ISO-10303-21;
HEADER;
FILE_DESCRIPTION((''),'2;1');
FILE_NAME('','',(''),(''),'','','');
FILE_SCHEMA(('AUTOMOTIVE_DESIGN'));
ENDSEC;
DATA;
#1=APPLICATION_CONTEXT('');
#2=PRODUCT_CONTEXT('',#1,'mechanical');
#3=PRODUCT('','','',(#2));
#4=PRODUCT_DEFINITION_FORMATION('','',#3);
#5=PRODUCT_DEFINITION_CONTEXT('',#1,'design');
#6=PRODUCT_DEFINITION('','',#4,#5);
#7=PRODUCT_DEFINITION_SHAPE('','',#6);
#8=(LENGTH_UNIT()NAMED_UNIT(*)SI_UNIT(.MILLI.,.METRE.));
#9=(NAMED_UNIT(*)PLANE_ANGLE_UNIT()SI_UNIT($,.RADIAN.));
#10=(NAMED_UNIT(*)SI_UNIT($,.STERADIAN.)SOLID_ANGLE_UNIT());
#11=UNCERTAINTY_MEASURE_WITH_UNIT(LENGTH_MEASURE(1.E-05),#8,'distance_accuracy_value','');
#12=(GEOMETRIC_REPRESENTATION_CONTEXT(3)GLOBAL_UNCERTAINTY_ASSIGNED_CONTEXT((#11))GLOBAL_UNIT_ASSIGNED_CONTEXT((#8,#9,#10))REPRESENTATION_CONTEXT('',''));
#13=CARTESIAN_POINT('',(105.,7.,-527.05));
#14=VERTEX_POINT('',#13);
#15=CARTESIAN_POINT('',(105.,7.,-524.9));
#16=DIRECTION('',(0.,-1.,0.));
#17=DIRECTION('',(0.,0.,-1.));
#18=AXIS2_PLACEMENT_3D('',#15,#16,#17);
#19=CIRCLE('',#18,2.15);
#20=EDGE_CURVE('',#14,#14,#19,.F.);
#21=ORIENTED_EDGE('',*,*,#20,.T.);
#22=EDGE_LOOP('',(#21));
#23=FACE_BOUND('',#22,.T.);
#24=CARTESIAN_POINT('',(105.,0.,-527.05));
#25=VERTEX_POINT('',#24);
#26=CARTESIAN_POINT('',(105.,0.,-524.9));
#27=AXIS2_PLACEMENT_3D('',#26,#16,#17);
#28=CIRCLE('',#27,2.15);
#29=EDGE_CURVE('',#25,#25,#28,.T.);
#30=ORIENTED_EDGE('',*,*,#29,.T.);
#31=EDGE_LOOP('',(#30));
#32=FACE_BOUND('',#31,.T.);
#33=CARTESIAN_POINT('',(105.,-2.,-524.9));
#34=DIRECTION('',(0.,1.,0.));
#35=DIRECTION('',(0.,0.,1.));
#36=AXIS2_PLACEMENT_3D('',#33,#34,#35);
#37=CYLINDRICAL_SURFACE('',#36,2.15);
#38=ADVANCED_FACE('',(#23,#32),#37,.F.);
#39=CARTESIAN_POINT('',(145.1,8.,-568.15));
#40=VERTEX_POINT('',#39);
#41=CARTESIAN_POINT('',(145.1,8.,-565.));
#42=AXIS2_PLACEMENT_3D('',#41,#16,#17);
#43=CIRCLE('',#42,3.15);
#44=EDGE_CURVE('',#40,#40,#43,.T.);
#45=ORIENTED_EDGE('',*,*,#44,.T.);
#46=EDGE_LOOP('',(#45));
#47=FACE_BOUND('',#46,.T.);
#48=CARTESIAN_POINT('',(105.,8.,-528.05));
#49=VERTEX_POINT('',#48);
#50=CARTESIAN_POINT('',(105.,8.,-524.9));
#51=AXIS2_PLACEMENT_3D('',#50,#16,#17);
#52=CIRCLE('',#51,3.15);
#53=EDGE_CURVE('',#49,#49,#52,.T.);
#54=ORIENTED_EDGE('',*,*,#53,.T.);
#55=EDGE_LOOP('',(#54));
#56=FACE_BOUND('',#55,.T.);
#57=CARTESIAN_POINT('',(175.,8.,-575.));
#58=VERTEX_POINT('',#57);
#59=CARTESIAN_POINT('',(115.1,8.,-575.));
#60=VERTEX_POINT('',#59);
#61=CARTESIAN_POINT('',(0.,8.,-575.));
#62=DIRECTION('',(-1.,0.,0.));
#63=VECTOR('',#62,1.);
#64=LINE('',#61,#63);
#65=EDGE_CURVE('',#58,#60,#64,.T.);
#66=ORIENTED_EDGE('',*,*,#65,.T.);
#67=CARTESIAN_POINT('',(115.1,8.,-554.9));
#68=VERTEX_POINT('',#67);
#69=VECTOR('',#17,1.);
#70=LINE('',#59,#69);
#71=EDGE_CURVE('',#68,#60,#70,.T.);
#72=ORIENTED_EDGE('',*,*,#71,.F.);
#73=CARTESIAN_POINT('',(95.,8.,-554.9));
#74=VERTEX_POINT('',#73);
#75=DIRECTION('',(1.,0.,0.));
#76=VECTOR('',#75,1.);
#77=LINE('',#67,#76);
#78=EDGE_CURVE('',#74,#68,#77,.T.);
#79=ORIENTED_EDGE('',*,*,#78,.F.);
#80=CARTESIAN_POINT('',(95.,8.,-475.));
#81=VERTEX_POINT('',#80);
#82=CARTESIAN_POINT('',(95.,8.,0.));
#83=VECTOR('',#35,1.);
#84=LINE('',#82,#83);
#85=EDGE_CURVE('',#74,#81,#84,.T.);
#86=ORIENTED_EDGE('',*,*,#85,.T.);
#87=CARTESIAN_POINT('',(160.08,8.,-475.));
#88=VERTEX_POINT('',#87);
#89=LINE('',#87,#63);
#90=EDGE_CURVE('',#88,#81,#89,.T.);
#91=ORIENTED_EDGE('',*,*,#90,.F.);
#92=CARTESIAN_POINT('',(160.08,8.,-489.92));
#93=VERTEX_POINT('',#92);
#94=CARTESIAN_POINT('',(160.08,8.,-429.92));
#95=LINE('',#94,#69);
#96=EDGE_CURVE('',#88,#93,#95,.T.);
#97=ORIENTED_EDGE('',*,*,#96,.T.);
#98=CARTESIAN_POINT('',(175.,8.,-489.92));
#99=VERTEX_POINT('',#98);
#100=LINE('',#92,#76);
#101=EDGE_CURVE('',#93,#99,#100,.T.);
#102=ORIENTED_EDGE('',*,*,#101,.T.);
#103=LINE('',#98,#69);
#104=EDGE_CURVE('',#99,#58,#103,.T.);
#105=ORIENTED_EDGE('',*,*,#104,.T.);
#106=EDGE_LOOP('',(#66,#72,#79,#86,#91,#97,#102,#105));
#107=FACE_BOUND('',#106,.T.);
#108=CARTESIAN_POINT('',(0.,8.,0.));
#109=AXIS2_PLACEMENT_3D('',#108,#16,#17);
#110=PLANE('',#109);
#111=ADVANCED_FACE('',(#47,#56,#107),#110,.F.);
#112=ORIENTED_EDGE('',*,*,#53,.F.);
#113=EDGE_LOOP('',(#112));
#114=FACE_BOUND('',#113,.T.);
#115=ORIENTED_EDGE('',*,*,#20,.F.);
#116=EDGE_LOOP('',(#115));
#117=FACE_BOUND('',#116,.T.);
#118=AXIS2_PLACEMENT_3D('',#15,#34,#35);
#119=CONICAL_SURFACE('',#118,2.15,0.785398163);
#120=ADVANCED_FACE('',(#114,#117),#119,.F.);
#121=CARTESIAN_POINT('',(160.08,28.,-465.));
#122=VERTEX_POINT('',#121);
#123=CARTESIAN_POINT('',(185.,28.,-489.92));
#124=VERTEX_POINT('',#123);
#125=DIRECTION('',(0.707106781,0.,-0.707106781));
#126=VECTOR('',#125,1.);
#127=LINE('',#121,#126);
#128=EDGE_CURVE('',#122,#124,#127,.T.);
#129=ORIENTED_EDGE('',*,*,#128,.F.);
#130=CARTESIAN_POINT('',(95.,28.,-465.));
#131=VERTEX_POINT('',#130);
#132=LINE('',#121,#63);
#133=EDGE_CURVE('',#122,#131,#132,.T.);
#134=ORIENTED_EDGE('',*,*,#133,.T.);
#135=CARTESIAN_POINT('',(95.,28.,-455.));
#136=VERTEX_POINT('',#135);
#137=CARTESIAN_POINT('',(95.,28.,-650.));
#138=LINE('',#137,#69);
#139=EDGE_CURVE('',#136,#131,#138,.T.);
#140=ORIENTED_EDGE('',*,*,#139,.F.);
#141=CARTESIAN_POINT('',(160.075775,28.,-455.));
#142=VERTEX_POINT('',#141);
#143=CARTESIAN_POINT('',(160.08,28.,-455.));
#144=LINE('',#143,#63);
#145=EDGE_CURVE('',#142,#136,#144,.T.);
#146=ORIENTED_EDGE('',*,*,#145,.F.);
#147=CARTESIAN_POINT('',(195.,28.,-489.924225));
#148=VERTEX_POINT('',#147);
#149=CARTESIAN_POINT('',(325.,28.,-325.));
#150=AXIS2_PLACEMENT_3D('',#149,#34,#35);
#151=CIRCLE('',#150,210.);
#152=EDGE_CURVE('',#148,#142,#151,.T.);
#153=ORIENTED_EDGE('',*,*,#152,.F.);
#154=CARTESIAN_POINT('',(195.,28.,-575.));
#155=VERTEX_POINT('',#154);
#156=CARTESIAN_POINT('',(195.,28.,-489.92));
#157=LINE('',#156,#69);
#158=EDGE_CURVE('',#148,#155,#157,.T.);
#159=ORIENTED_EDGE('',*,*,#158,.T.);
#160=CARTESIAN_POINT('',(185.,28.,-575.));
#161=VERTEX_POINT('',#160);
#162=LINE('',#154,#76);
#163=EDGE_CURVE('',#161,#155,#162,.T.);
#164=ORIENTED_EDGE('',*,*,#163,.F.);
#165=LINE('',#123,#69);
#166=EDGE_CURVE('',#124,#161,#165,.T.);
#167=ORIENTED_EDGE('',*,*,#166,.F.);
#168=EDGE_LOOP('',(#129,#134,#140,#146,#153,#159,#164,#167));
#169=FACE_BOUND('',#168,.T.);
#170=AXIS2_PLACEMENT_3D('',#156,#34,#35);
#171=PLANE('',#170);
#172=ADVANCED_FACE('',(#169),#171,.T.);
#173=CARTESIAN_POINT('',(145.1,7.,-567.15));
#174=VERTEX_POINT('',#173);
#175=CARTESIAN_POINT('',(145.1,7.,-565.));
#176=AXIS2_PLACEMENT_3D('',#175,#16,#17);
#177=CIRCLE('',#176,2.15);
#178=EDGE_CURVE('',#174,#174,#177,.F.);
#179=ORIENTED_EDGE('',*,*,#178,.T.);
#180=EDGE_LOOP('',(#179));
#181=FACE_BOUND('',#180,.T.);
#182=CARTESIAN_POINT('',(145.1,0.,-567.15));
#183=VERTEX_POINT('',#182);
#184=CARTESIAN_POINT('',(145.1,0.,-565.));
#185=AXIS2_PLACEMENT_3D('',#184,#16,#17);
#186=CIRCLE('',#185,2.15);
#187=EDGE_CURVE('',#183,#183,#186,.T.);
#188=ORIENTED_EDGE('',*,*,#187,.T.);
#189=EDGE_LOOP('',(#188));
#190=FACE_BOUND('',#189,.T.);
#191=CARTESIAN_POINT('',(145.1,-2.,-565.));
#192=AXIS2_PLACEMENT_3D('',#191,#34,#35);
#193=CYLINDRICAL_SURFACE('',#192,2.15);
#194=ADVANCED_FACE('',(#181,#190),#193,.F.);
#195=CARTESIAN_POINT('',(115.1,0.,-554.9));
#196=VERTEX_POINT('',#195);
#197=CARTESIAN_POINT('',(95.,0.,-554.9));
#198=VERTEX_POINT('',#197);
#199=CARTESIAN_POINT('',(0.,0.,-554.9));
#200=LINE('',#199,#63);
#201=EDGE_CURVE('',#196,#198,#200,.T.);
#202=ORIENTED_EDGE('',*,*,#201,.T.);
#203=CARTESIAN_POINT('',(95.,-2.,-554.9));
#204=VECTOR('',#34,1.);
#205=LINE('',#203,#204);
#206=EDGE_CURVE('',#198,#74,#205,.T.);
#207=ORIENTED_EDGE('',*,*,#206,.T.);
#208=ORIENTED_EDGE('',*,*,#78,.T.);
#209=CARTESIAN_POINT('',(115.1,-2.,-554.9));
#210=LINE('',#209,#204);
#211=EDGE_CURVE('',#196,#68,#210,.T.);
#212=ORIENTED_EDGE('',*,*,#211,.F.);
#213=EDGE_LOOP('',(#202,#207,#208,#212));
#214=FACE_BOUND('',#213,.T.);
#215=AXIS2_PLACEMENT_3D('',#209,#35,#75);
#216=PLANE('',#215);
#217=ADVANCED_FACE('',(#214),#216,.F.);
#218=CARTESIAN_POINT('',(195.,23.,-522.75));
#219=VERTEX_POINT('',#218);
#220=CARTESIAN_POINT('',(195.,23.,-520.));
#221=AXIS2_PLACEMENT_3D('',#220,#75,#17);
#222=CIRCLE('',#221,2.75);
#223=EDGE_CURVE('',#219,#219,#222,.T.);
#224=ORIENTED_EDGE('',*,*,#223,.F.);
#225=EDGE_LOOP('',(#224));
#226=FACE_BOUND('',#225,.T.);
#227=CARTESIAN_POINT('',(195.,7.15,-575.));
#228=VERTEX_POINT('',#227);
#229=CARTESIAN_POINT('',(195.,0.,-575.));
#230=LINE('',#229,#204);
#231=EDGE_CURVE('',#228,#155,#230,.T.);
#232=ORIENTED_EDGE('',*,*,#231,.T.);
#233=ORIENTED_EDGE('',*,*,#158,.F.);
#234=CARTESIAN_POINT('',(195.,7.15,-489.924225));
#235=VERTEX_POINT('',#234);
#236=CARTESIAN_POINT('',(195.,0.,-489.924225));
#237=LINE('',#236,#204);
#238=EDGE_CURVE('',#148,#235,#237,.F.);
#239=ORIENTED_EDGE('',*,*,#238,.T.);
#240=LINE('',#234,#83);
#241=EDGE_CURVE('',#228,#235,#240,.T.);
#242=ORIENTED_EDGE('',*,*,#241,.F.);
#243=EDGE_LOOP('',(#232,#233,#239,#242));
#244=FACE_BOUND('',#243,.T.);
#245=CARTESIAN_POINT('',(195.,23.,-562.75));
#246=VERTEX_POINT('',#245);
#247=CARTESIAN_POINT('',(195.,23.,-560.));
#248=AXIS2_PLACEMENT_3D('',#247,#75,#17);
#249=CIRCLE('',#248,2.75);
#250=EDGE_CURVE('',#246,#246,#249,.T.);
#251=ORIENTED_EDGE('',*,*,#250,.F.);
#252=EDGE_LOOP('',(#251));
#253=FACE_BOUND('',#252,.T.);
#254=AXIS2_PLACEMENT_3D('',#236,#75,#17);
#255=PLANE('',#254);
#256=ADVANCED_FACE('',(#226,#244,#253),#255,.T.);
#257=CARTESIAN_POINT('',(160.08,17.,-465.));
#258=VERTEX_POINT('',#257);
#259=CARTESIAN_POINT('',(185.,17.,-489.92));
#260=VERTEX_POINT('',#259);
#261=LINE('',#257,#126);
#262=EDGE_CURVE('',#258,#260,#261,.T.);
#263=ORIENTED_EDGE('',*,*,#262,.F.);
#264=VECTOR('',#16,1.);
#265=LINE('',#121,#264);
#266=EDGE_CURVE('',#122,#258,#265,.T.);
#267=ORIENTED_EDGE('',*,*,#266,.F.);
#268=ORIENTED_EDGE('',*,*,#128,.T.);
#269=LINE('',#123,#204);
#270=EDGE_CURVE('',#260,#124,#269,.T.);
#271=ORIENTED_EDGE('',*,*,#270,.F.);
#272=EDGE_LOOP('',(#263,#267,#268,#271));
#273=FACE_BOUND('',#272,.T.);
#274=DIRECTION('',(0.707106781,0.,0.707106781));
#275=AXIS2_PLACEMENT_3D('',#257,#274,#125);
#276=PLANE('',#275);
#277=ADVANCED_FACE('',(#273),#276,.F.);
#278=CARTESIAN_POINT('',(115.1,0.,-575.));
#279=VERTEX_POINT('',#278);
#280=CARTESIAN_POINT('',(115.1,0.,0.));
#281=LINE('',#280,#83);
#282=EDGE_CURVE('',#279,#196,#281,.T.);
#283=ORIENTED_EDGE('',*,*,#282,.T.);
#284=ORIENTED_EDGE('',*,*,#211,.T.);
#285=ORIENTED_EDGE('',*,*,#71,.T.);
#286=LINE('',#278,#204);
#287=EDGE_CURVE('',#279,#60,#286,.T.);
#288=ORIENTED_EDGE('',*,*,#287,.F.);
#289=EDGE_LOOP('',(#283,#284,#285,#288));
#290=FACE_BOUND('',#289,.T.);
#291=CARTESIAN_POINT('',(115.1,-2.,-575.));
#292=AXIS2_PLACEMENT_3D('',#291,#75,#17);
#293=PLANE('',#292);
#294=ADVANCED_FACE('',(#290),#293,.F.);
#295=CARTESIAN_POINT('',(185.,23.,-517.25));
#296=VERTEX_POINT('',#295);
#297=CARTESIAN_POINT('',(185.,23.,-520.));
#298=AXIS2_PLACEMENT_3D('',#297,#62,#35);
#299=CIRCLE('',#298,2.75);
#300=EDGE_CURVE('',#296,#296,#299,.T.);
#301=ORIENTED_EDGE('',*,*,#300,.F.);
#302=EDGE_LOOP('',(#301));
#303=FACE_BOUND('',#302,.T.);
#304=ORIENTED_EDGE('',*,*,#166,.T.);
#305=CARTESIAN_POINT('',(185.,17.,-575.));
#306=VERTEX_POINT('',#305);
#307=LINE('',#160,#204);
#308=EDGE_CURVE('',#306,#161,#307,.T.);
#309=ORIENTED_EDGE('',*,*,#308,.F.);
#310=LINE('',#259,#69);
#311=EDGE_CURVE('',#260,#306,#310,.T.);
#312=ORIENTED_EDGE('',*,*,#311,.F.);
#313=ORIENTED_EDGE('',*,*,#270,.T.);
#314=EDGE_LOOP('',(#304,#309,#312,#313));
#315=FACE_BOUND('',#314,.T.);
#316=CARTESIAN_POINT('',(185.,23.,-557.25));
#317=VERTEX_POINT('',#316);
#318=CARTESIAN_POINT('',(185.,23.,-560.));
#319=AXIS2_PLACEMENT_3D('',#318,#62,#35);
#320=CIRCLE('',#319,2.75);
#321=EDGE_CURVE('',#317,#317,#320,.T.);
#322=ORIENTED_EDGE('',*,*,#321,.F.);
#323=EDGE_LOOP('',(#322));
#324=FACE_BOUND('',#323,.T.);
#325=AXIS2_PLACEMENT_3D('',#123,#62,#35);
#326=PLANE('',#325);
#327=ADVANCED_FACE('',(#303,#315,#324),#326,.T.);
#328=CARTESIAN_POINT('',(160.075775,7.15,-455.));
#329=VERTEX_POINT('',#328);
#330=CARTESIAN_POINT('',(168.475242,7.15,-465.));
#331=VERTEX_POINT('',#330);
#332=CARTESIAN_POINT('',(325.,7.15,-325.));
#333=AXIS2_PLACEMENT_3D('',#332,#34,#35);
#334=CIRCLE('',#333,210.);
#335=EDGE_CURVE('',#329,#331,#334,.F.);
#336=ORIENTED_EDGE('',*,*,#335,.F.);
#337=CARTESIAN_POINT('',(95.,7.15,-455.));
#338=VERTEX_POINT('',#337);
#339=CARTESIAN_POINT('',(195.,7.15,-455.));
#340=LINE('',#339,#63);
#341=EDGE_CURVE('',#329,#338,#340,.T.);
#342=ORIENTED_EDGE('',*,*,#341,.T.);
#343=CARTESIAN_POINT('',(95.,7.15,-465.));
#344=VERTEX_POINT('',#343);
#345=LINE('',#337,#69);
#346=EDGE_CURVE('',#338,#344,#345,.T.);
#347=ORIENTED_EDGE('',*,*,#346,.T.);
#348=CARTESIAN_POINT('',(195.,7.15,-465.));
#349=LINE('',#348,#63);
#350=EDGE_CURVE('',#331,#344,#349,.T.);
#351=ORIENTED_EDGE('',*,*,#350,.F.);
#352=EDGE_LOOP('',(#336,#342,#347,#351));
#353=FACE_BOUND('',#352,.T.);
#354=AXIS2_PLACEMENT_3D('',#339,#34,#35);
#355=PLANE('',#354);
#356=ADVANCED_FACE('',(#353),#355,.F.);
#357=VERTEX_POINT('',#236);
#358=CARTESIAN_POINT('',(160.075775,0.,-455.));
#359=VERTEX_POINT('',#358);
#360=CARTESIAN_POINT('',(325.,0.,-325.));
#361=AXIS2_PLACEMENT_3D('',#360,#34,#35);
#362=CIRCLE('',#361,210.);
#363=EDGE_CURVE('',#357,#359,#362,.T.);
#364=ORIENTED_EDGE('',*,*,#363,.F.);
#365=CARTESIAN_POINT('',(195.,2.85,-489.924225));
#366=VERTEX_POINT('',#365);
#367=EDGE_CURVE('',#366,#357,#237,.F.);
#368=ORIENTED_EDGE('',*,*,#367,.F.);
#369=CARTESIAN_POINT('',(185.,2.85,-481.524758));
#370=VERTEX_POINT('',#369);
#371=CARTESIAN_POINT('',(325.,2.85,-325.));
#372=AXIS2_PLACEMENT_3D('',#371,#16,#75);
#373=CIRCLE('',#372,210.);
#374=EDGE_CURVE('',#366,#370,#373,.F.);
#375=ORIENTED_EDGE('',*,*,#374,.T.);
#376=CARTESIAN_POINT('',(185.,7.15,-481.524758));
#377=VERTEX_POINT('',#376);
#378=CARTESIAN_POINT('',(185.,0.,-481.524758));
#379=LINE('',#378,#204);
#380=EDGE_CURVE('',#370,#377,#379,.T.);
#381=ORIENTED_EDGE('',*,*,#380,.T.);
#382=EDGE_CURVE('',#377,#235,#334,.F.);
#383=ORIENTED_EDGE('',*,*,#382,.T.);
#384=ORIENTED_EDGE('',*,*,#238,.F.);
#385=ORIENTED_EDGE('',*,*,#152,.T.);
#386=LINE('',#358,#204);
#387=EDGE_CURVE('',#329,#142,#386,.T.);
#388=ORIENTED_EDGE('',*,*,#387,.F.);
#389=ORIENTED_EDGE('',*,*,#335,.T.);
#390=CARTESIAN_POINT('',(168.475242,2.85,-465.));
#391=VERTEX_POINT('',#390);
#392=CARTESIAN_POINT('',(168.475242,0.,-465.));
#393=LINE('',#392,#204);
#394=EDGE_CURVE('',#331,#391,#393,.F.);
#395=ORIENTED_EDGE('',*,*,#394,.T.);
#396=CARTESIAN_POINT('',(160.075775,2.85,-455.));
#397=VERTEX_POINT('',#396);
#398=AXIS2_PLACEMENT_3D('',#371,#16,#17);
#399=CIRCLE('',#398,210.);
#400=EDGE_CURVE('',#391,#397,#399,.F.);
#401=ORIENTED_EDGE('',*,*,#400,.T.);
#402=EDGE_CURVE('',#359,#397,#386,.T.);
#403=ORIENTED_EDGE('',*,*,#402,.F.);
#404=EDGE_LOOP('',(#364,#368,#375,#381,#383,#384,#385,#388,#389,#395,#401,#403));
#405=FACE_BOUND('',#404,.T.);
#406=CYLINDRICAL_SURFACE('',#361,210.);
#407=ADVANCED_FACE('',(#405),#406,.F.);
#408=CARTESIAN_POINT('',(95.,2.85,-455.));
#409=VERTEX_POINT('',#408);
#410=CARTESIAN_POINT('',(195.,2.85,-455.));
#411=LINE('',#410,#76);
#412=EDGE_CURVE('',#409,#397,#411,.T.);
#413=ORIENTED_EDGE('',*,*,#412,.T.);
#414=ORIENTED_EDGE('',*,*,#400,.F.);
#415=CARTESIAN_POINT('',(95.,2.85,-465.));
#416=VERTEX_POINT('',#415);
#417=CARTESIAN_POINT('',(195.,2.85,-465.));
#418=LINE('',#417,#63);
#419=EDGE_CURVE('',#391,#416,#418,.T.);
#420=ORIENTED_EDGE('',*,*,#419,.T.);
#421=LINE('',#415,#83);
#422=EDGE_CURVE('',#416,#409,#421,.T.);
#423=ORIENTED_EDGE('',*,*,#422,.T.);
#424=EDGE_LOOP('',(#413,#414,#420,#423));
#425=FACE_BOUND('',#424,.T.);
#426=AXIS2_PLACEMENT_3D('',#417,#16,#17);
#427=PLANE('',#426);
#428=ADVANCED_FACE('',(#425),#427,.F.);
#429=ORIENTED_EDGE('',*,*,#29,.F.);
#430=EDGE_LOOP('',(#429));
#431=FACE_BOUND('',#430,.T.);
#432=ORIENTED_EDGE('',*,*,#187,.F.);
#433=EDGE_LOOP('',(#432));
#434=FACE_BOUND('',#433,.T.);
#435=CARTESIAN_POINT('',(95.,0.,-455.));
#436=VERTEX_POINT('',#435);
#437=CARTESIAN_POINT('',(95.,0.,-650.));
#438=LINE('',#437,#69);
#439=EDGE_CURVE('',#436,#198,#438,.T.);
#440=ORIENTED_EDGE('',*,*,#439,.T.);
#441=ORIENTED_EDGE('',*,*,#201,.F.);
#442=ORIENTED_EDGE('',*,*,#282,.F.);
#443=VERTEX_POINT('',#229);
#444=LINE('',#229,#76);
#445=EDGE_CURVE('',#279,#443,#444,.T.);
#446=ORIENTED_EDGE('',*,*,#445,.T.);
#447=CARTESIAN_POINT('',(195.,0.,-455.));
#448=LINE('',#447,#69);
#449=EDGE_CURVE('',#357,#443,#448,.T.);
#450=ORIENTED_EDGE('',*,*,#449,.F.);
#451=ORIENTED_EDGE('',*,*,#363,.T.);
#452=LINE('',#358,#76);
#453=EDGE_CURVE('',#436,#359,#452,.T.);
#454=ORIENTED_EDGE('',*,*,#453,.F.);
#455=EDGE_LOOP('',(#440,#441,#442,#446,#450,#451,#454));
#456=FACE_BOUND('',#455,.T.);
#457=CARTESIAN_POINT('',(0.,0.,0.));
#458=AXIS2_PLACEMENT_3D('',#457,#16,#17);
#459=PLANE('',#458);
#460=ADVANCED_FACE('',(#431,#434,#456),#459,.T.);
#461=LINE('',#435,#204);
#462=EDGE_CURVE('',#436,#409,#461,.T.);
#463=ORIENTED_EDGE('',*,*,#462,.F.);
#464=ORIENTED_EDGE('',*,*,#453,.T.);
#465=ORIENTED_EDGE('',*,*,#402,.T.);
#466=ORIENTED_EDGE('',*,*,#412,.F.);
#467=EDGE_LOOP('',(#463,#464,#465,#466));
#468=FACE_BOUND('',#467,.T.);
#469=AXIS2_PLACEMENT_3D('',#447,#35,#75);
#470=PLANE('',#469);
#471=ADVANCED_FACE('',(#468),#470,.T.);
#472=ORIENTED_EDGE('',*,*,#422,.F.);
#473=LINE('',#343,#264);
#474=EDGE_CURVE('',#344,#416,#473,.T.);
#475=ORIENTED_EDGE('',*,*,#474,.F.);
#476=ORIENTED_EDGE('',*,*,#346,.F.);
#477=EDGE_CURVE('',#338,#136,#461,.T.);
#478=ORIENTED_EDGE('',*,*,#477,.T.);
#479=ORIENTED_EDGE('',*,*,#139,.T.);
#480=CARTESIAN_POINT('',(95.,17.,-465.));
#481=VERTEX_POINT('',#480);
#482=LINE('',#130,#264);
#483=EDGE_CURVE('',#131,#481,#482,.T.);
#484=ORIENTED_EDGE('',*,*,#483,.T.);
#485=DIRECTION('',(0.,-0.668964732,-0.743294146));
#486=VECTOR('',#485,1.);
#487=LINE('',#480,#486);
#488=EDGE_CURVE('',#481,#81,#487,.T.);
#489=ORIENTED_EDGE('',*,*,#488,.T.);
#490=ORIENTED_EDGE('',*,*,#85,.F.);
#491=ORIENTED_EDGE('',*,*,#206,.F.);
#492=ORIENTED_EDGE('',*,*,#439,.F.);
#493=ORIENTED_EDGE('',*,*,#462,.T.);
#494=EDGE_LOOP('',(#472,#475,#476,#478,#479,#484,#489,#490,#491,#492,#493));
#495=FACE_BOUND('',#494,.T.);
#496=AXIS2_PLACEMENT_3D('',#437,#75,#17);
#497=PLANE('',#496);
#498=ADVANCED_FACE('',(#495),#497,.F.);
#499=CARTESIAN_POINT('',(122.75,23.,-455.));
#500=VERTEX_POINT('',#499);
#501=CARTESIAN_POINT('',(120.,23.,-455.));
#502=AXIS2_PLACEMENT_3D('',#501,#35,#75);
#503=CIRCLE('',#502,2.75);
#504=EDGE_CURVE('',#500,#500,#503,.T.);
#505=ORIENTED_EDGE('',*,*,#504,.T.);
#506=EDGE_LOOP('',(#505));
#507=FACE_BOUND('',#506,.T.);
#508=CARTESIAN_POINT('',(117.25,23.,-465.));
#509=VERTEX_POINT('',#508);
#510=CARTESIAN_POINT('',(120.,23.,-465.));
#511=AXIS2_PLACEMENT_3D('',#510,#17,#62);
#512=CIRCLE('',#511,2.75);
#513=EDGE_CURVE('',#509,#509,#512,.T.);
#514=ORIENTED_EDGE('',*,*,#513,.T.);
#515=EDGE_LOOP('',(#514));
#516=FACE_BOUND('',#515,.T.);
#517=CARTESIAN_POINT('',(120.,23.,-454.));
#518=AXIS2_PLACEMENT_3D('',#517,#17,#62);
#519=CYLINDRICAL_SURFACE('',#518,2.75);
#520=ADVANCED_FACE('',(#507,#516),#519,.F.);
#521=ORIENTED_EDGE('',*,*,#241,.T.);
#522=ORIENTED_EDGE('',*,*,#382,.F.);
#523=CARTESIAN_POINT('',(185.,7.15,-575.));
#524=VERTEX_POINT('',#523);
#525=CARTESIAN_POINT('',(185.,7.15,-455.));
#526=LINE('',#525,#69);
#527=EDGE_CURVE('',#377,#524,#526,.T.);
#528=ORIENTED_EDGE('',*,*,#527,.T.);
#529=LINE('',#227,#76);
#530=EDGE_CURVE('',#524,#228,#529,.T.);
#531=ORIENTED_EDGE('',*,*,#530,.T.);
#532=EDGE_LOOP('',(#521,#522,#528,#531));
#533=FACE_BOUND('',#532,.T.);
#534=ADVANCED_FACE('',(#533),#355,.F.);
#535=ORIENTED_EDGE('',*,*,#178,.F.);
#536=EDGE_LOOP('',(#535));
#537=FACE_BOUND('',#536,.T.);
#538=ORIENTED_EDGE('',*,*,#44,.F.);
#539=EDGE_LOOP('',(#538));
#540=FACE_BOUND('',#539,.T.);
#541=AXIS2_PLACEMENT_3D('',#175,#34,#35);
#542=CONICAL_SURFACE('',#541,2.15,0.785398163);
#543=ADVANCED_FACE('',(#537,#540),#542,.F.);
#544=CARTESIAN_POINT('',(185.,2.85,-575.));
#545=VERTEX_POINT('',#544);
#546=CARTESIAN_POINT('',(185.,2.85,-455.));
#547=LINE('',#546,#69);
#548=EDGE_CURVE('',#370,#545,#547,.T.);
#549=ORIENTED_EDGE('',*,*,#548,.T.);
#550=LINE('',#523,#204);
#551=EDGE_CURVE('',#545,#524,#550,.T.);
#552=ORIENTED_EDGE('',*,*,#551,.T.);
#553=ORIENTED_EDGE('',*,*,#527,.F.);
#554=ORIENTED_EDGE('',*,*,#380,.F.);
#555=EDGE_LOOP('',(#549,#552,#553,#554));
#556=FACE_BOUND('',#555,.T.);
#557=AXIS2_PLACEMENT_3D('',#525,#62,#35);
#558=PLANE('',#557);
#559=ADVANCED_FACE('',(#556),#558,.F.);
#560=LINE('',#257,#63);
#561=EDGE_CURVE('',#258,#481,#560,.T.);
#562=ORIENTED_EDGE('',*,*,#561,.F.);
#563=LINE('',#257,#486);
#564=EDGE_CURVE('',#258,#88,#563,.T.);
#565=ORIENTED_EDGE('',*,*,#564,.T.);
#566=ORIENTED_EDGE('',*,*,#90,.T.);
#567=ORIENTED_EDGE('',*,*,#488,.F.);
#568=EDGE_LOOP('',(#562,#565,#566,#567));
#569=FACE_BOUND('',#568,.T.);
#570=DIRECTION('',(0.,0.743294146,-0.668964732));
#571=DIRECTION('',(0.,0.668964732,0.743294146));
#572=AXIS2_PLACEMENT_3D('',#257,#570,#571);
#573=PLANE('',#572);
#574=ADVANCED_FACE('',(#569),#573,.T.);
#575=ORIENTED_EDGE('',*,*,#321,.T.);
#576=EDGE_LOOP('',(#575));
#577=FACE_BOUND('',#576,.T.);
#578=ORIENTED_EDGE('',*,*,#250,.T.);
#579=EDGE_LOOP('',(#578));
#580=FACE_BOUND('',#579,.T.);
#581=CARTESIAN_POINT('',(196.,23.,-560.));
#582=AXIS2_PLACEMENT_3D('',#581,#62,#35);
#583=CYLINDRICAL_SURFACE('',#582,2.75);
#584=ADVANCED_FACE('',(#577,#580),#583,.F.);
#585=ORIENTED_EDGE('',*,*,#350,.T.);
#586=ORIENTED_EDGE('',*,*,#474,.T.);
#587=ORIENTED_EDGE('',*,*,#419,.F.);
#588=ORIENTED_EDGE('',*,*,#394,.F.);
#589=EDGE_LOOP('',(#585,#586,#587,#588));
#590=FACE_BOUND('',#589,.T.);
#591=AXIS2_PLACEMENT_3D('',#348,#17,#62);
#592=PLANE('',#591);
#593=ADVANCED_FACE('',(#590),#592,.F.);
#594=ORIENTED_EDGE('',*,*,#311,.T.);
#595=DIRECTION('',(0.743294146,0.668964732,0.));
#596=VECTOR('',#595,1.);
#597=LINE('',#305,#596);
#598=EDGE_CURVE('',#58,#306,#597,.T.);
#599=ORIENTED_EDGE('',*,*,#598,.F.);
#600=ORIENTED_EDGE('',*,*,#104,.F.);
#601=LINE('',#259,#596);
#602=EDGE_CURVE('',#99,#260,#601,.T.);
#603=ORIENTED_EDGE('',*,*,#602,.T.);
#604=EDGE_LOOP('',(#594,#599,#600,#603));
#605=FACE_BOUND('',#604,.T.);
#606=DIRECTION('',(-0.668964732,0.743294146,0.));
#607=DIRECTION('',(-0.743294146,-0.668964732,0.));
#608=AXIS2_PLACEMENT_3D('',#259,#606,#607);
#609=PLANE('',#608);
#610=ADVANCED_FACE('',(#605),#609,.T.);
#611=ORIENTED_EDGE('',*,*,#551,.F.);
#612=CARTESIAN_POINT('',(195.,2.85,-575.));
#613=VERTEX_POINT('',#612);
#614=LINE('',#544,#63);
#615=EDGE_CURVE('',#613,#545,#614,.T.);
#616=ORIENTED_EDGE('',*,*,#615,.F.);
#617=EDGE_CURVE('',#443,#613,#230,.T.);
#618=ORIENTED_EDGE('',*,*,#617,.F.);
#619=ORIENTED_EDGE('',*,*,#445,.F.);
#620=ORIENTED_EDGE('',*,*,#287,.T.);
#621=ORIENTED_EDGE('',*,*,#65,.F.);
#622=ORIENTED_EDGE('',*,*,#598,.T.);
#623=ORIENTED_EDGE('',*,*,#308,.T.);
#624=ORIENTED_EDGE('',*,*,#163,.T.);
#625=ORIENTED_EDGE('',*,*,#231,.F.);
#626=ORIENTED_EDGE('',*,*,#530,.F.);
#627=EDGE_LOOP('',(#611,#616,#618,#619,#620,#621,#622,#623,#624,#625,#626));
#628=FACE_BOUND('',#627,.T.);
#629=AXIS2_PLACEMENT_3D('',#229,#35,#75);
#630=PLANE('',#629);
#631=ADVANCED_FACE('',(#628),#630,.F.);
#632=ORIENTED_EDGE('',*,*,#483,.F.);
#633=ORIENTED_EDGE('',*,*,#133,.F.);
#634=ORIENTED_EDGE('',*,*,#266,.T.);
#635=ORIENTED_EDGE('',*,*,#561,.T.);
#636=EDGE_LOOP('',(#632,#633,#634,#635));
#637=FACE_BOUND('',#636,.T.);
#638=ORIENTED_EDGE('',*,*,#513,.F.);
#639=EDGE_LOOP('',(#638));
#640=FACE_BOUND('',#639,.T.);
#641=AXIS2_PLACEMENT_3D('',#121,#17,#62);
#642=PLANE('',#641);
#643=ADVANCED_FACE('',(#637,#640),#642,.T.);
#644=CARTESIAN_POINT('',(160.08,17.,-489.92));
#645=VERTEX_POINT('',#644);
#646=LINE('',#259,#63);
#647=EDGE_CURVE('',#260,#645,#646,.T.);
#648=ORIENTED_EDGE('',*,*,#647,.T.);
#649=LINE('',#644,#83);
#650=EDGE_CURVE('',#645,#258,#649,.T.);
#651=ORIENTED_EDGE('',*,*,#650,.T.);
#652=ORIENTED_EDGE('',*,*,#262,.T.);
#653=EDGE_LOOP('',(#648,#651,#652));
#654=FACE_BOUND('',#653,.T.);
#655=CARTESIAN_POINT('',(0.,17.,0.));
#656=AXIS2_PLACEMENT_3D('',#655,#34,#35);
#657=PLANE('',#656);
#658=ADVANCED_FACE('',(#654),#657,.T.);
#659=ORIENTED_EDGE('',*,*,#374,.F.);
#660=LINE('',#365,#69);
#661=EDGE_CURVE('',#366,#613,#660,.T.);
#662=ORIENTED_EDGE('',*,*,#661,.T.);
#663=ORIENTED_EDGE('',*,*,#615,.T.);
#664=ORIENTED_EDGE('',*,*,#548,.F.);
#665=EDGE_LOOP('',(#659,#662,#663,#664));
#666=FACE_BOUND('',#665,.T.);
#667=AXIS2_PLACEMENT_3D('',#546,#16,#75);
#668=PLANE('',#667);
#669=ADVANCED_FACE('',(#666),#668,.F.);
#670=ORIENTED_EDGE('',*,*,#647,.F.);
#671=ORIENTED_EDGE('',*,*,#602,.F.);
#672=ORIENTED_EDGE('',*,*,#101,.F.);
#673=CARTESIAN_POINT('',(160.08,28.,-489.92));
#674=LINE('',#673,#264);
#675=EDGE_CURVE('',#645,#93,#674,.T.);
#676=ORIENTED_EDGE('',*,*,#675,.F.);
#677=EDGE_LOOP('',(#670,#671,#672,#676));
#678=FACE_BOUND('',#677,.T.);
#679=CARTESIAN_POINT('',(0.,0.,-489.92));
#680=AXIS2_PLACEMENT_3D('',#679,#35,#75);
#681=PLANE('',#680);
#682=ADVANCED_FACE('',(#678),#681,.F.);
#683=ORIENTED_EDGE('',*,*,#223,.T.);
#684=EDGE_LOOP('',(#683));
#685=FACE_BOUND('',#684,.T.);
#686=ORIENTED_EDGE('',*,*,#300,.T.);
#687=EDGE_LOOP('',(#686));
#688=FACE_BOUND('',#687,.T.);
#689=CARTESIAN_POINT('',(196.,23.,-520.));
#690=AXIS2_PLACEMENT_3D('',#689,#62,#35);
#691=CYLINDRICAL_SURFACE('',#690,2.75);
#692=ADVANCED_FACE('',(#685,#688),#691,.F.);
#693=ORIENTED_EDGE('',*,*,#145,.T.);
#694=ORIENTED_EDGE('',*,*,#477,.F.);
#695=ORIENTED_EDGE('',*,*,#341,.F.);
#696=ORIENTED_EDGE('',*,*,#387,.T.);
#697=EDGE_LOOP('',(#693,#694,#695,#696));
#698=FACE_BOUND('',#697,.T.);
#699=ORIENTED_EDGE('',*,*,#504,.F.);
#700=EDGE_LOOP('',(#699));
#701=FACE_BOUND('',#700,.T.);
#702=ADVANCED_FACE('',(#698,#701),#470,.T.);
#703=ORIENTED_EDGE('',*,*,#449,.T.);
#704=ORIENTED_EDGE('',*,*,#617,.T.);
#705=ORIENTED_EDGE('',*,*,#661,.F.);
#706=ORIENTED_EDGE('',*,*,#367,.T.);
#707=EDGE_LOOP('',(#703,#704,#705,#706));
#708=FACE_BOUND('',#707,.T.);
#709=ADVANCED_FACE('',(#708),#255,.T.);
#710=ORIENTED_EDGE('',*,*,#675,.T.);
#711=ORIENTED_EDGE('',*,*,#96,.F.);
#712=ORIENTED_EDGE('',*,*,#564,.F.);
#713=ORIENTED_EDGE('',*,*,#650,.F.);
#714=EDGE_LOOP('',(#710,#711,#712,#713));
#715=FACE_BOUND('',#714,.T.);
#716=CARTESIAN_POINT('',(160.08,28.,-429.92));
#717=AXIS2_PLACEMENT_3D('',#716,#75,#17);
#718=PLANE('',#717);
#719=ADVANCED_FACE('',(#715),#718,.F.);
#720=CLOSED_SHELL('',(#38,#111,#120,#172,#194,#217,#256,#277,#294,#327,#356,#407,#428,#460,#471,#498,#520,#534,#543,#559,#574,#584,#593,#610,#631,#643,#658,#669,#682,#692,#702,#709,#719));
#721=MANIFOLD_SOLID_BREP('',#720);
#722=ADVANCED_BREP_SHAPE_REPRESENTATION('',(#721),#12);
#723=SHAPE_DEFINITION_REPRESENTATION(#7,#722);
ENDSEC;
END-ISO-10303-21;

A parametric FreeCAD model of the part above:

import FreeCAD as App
import Part
import Sketcher


def edges_at(feature, points):
    """Names of the edges that pass closest to the given points."""
    edges = feature.Shape.Edges
    near = lambda p: min(range(len(edges)), key=lambda i: edges[i].distToShape(Part.Vertex(*p))[0])
    return sorted({f"Edge{near(p) + 1}" for p in points})


def add_polygon(sketch, points):
    """Adds a closed chain of lines whose ends are joined by coincident constraints."""
    first, n = sketch.GeometryCount, len(points)
    for a, b in zip(points, points[1:] + points[:1]):
        sketch.addGeometry(Part.LineSegment(App.Vector(*a, 0), App.Vector(*b, 0)), False)
    for i in range(n):
        sketch.addConstraint(Sketcher.Constraint("Coincident", first + i, 2, first + (i + 1) % n, 1))

doc = App.newDocument("Part")
body = doc.addObject("PartDesign::Body", "Body")

sketch1 = body.newObject("Sketcher::SketchObject", "Sketch")
sketch1.AttachmentSupport = (doc.getObject("XZ_Plane"), [""])
sketch1.MapMode = "FlatFace"
add_polygon(sketch1, [(0, -650), (0, 0), (650, 0), (650, -650)])
sketch1.addConstraint([
    Sketcher.Constraint("Vertical", 0),
    Sketcher.Constraint("Horizontal", 1),
    Sketcher.Constraint("Vertical", 2),
    Sketcher.Constraint("Horizontal", 3),
    Sketcher.Constraint("Coincident", 0, 2, -1, 1),
    Sketcher.Constraint("Equal", 3, 0),
    Sketcher.Constraint("DistanceX", 1, 1, 1, 2, 650.0),
])
pad1 = body.newObject("PartDesign::Pad", "Pad")
pad1.Profile = sketch1
pad1.Length = 8
pad1.Reversed = True

sketch2 = body.newObject("Sketcher::SketchObject", "Sketch001")
sketch2.AttachmentSupport = (doc.getObject("XY_Plane"), [""])
sketch2.MapMode = "FlatFace"
add_polygon(sketch2, [(350, 43.707142), (300, 43.707142), (265, 8), (385, 8)])
sketch2.addConstraint([
    Sketcher.Constraint("Horizontal", 0),
    Sketcher.Constraint("Horizontal", 2),
    Sketcher.Constraint("Equal", 1, 3),
    Sketcher.Constraint("DistanceX", 0, 2, 0, 1, 50.0),
    Sketcher.Constraint("DistanceX", 2, 1, 2, 2, 120.0),
    Sketcher.Constraint("Distance", 1, 50.0),
    Sketcher.Constraint("DistanceX", -1, 1, 0, 2, 300.0),
    Sketcher.Constraint("DistanceY", -1, 1, 1, 2, 8.0),
])
pad2 = body.newObject("PartDesign::Pad", "Pad001")
pad2.Profile = sketch2
pad2.Length = 650
pad2.Reversed = True

sketch3 = body.newObject("Sketcher::SketchObject", "Sketch002")
sketch3.AttachmentSupport = (doc.getObject("XY_Plane"), [""])
sketch3.MapMode = "FlatFace"
sketch3.addGeometry(Part.Circle(App.Vector(325, 22, 0), App.Vector(0, 0, 1), 11), False)
sketch3.addConstraint([
    Sketcher.Constraint("Diameter", 0, 22.0),
    Sketcher.Constraint("DistanceX", -1, 1, 0, 3, 325.0),
    Sketcher.Constraint("DistanceY", -1, 1, 0, 3, 22.0),
])
pocket1 = body.newObject("PartDesign::Pocket", "Pocket")
pocket1.Profile = sketch3
pocket1.Type = "ThroughAll"
pocket1.Midplane = True

sketch4 = body.newObject("Sketcher::SketchObject", "Sketch003")
sketch4.AttachmentSupport = (doc.getObject("XZ_Plane"), [""])
sketch4.MapMode = "FlatFace"
sketch4.AttachmentOffset = App.Placement(App.Vector(0, 0, -8), App.Rotation())
sketch4.addGeometry(Part.Circle(App.Vector(325, -325, 0), App.Vector(0, 0, 1), 210), False)
sketch4.addConstraint([
    Sketcher.Constraint("Diameter", 0, 420.0),
    Sketcher.Constraint("DistanceX", -1, 1, 0, 3, 325.0),
    Sketcher.Constraint("DistanceY", 0, 3, -1, 1, 325.0),
])
pocket2 = body.newObject("PartDesign::Pocket", "Pocket001")
pocket2.Profile = sketch4
pocket2.Type = "ThroughAll"
pocket2.Midplane = True

sketch5 = body.newObject("Sketcher::SketchObject", "Sketch004")
sketch5.AttachmentSupport = (doc.getObject("XY_Plane"), [""])
sketch5.MapMode = "FlatFace"
add_polygon(sketch5, [(350, 43.707142), (300, 43.707142), (284.603921, 28), (300, 28), (300, 8), (350, 8), (350, 28), (365.396079, 28)])
sketch5.addConstraint([
    Sketcher.Constraint("Horizontal", 0),
    Sketcher.Constraint("Horizontal", 2),
    Sketcher.Constraint("Vertical", 3),
    Sketcher.Constraint("Horizontal", 4),
    Sketcher.Constraint("Vertical", 5),
    Sketcher.Constraint("Horizontal", 6),
    Sketcher.Constraint("Horizontal", 2, 2, 5, 2),
    Sketcher.Constraint("Vertical", 0, 2, 2, 2),
    Sketcher.Constraint("Vertical", 5, 2, 7, 2),
    Sketcher.Constraint("Equal", 2, 6),
    Sketcher.Constraint("DistanceX", 0, 2, 0, 1, 50.0),
    Sketcher.Constraint("DistanceY", 3, 2, 3, 1, 20.0),
    Sketcher.Constraint("DistanceX", -1, 1, 0, 2, 300.0),
    Sketcher.Constraint("DistanceY", -1, 1, 1, 2, 28.0),
    Sketcher.Constraint("Distance", 1, 21.994398),
    Sketcher.Constraint("DistanceX", 2, 1, 2, 2, 15.396079),
])
pocket3 = body.newObject("PartDesign::Pocket", "Pocket002")
pocket3.Profile = sketch5
pocket3.Type = "TwoLengths"
pocket3.Length = 921.277303
pocket3.Length2 = 110
pocket3.Reversed = True

sketch6 = body.newObject("Sketcher::SketchObject", "Sketch005")
sketch6.AttachmentSupport = (doc.getObject("XY_Plane"), [""])
sketch6.MapMode = "FlatFace"
sketch6.AttachmentOffset = App.Placement(App.Vector(0, 0, -650), App.Rotation())
add_polygon(sketch6, [(300, 43.707142), (350, 43.707142), (365.396079, 28), (350, 28), (350, 8), (300, 8), (300, 28), (284.603921, 28)])
sketch6.addConstraint([
    Sketcher.Constraint("Horizontal", 0),
    Sketcher.Constraint("Horizontal", 2),
    Sketcher.Constraint("Vertical", 3),
    Sketcher.Constraint("Horizontal", 4),
    Sketcher.Constraint("Vertical", 5),
    Sketcher.Constraint("Horizontal", 6),
    Sketcher.Constraint("Horizontal", 2, 2, 5, 2),
    Sketcher.Constraint("Vertical", 0, 2, 2, 2),
    Sketcher.Constraint("Vertical", 5, 2, 7, 2),
    Sketcher.Constraint("Equal", 2, 6),
    Sketcher.Constraint("DistanceX", 0, 1, 0, 2, 50.0),
    Sketcher.Constraint("DistanceY", 3, 2, 3, 1, 20.0),
    Sketcher.Constraint("DistanceX", -1, 1, 0, 2, 350.0),
    Sketcher.Constraint("DistanceY", -1, 1, 1, 2, 28.0),
    Sketcher.Constraint("Distance", 1, 21.994398),
    Sketcher.Constraint("DistanceX", 2, 2, 2, 1, 15.396079),
])
pocket4 = body.newObject("PartDesign::Pocket", "Pocket003")
pocket4.Profile = sketch6
pocket4.Length = 110
pocket4.Reversed = True

sketch7 = body.newObject("Sketcher::SketchObject", "Sketch006")
sketch7.AttachmentSupport = (doc.getObject("XZ_Plane"), [""])
sketch7.MapMode = "FlatFace"
sketch7.AttachmentOffset = App.Placement(App.Vector(0, 0, -8), App.Rotation())
add_polygon(sketch7, [(-93.028, -743.028), (-93.028, 93.028), (743.028, 93.028), (743.028, -743.028)])
add_polygon(sketch7, [(195, -650), (195, -455), (0, -455), (-70.838919, -472.462113), (-70.838919, -686.544505), (167.478198, -686.544505)])
sketch7.addConstraint([
    Sketcher.Constraint("Vertical", 0),
    Sketcher.Constraint("Horizontal", 1),
    Sketcher.Constraint("Vertical", 2),
    Sketcher.Constraint("Horizontal", 3),
    Sketcher.Constraint("Vertical", 4),
    Sketcher.Constraint("Horizontal", 5),
    Sketcher.Constraint("Vertical", 7),
    Sketcher.Constraint("Horizontal", 8),
    Sketcher.Constraint("PointOnObject", 5, 2, -2),
    Sketcher.Constraint("Equal", 3, 0),
    Sketcher.Constraint("Equal", 5, 4),
    Sketcher.Constraint("DistanceX", 5, 2, 5, 1, 195.0),
    Sketcher.Constraint("DistanceY", 4, 2, -1, 1, 455.0),
    Sketcher.Constraint("DistanceX", 1, 1, 1, 2, 836.056),
    Sketcher.Constraint("DistanceX", 0, 2, -1, 1, 93.028),
    Sketcher.Constraint("DistanceY", -1, 1, 0, 2, 93.028),
    Sketcher.Constraint("DistanceY", 7, 2, 7, 1, 214.082392),
    Sketcher.Constraint("DistanceX", -1, 1, 8, 2, 167.478198),
    Sketcher.Constraint("DistanceX", 8, 1, 8, 2, 238.317117),
    Sketcher.Constraint("Distance", 6, 72.959426),
])
pocket5 = body.newObject("PartDesign::Pocket", "Pocket004")
pocket5.Profile = sketch7
pocket5.Type = "ThroughAll"
pocket5.Midplane = True

sketch8 = body.newObject("Sketcher::SketchObject", "Sketch007")
sketch8.AttachmentSupport = (doc.getObject("XY_Plane"), [""])
sketch8.MapMode = "FlatFace"
sketch8.AttachmentOffset = App.Placement(App.Vector(0, 0, -650), App.Rotation())
add_polygon(sketch8, [(195, 28), (195, 8), (175, 8), (185, 17), (185, 28)])
sketch8.addConstraint([
    Sketcher.Constraint("Vertical", 0),
    Sketcher.Constraint("Horizontal", 1),
    Sketcher.Constraint("Vertical", 3),
    Sketcher.Constraint("Horizontal", 4),
    Sketcher.Constraint("Equal", 1, 0),
    Sketcher.Constraint("DistanceX", 1, 2, 1, 1, 20.0),
    Sketcher.Constraint("DistanceX", 4, 1, 4, 2, 10.0),
    Sketcher.Constraint("DistanceY", 3, 1, 3, 2, 11.0),
    Sketcher.Constraint("DistanceX", -1, 1, 0, 2, 195.0),
    Sketcher.Constraint("DistanceY", -1, 1, 0, 2, 8.0),
])
pad3 = body.newObject("PartDesign::Pad", "Pad002")
pad3.Profile = sketch8
pad3.Length = 160.08

sketch9 = body.newObject("Sketcher::SketchObject", "Sketch008")
sketch9.AttachmentSupport = (doc.getObject("YZ_Plane"), [""])
sketch9.MapMode = "FlatFace"
add_polygon(sketch9, [(8, -455), (28, -455), (28, -465), (17, -465), (8, -475)])
sketch9.addConstraint([
    Sketcher.Constraint("Horizontal", 0),
    Sketcher.Constraint("Vertical", 1),
    Sketcher.Constraint("Horizontal", 2),
    Sketcher.Constraint("Vertical", 4),
    Sketcher.Constraint("Equal", 0, 4),
    Sketcher.Constraint("DistanceX", 0, 1, 0, 2, 20.0),
    Sketcher.Constraint("DistanceX", 2, 2, 2, 1, 11.0),
    Sketcher.Constraint("DistanceY", 1, 2, 1, 1, 10.0),
    Sketcher.Constraint("DistanceX", -1, 1, 0, 2, 28.0),
    Sketcher.Constraint("DistanceY", 0, 2, -1, 1, 455.0),
])
pad4 = body.newObject("PartDesign::Pad", "Pad003")
pad4.Profile = sketch9
pad4.Length = 160.08

sketch10 = body.newObject("Sketcher::SketchObject", "Sketch009")
sketch10.AttachmentSupport = (doc.getObject("YZ_Plane"), [""])
sketch10.MapMode = "FlatFace"
add_polygon(sketch10, [(7.15, -465), (2.85, -465), (2.85, -455), (7.15, -455)])
sketch10.addConstraint([
    Sketcher.Constraint("Horizontal", 0),
    Sketcher.Constraint("Vertical", 1),
    Sketcher.Constraint("Horizontal", 2),
    Sketcher.Constraint("Vertical", 3),
    Sketcher.Constraint("DistanceY", 1, 1, 1, 2, 10.0),
    Sketcher.Constraint("DistanceX", 0, 2, 0, 1, 4.3),
    Sketcher.Constraint("DistanceY", 0, 2, -1, 1, 465.0),
    Sketcher.Constraint("DistanceX", -1, 1, 0, 2, 2.85),
])
pocket6 = body.newObject("PartDesign::Pocket", "Pocket005")
pocket6.Profile = sketch10
pocket6.Type = "ThroughAll"
pocket6.Reversed = True

sketch11 = body.newObject("Sketcher::SketchObject", "Sketch010")
sketch11.AttachmentSupport = (doc.getObject("XY_Plane"), [""])
sketch11.MapMode = "FlatFace"
sketch11.AttachmentOffset = App.Placement(App.Vector(0, 0, -650), App.Rotation())
add_polygon(sketch11, [(195, 7.15), (195, 2.85), (185, 2.85), (185, 7.15)])
sketch11.addConstraint([
    Sketcher.Constraint("Vertical", 0),
    Sketcher.Constraint("Horizontal", 1),
    Sketcher.Constraint("Vertical", 2),
    Sketcher.Constraint("Horizontal", 3),
    Sketcher.Constraint("DistanceX", 1, 2, 1, 1, 10.0),
    Sketcher.Constraint("DistanceY", 0, 2, 0, 1, 4.3),
    Sketcher.Constraint("DistanceX", -1, 1, 0, 2, 195.0),
    Sketcher.Constraint("DistanceY", -1, 1, 0, 2, 2.85),
])
pocket7 = body.newObject("PartDesign::Pocket", "Pocket006")
pocket7.Profile = sketch11
pocket7.Type = "ThroughAll"
pocket7.Reversed = True

sketch12 = body.newObject("Sketcher::SketchObject", "Sketch011")
sketch12.AttachmentSupport = (doc.getObject("XY_Plane"), [""])
sketch12.MapMode = "FlatFace"
sketch12.AttachmentOffset = App.Placement(App.Vector(0, 0, -489.92), App.Rotation())
add_polygon(sketch12, [(194.99464, 8), (195, 28), (160.08, 28), (160.08, 8)])
sketch12.addConstraint([
    Sketcher.Constraint("Horizontal", 1),
    Sketcher.Constraint("Vertical", 2),
    Sketcher.Constraint("Horizontal", 3),
    Sketcher.Constraint("DistanceY", 2, 2, 2, 1, 20.0),
    Sketcher.Constraint("DistanceX", -1, 1, 0, 2, 195.0),
    Sketcher.Constraint("DistanceY", -1, 1, 0, 2, 28.0),
    Sketcher.Constraint("DistanceX", 1, 2, 1, 1, 34.92),
    Sketcher.Constraint("DistanceX", 3, 1, 3, 2, 34.91464),
])
pad5 = body.newObject("PartDesign::Pad", "Pad004")
pad5.Profile = sketch12
pad5.Length = 60

sketch13 = body.newObject("Sketcher::SketchObject", "Sketch012")
sketch13.AttachmentSupport = (doc.getObject("XZ_Plane"), [""])
sketch13.MapMode = "FlatFace"
sketch13.AttachmentOffset = App.Placement(App.Vector(0, 0, -8), App.Rotation())
sketch13.addGeometry(Part.Circle(App.Vector(325, -325, 0), App.Vector(0, 0, 1), 210), False)
sketch13.addConstraint([
    Sketcher.Constraint("Diameter", 0, 420.0),
    Sketcher.Constraint("DistanceX", -1, 1, 0, 3, 325.0),
    Sketcher.Constraint("DistanceY", 0, 3, -1, 1, 325.0),
])
pocket8 = body.newObject("PartDesign::Pocket", "Pocket007")
pocket8.Profile = sketch13
pocket8.Type = "ThroughAll"
pocket8.Midplane = True

sketch14 = body.newObject("Sketcher::SketchObject", "Sketch013")
sketch14.AttachmentSupport = (doc.getObject("XZ_Plane"), [""])
sketch14.MapMode = "FlatFace"
sketch14.AttachmentOffset = App.Placement(App.Vector(0, 0, -28), App.Rotation())
add_polygon(sketch14, [(185, -489.92), (160.08, -489.92), (160.08, -465)])
sketch14.addConstraint([
    Sketcher.Constraint("Horizontal", 0),
    Sketcher.Constraint("Vertical", 1),
    Sketcher.Constraint("Equal", 0, 1),
    Sketcher.Constraint("DistanceY", 1, 2, -1, 1, 465.0),
    Sketcher.Constraint("DistanceX", -1, 1, 2, 2, 185.0),
    Sketcher.Constraint("DistanceX", 0, 2, 0, 1, 24.92),
])
pocket9 = body.newObject("PartDesign::Pocket", "Pocket008")
pocket9.Profile = sketch14
pocket9.Length = 11
pocket9.Reversed = True

sketch15 = body.newObject("Sketcher::SketchObject", "Sketch014")
sketch15.AttachmentSupport = (doc.getObject("YZ_Plane"), [""])
sketch15.MapMode = "FlatFace"
sketch15.AttachmentOffset = App.Placement(App.Vector(0, 0, 185), App.Rotation())
sketch15.addGeometry([
    Part.Circle(App.Vector(23, -610, 0), App.Vector(0, 0, 1), 2.2),
    Part.Circle(App.Vector(23, -560, 0), App.Vector(0, 0, 1), 2.75),
    Part.Circle(App.Vector(23, -520, 0), App.Vector(0, 0, 1), 2.75),
], False)
sketch15.addConstraint([
    Sketcher.Constraint("Equal", 1, 2),
    Sketcher.Constraint("Vertical", 0, 3, 1, 3),
    Sketcher.Constraint("Vertical", 1, 3, 2, 3),
    Sketcher.Constraint("Diameter", 0, 4.4),
    Sketcher.Constraint("Diameter", 1, 5.5),
    Sketcher.Constraint("DistanceX", -1, 1, 0, 3, 23.0),
    Sketcher.Constraint("DistanceY", 0, 3, -1, 1, 610.0),
    Sketcher.Constraint("DistanceY", 1, 3, -1, 1, 560.0),
    Sketcher.Constraint("DistanceY", 2, 3, -1, 1, 520.0),
])
pocket10 = body.newObject("PartDesign::Pocket", "Pocket009")
pocket10.Profile = sketch15
pocket10.Length = 11
pocket10.Reversed = True

sketch16 = body.newObject("Sketcher::SketchObject", "Sketch015")
sketch16.AttachmentSupport = (doc.getObject("XY_Plane"), [""])
sketch16.MapMode = "FlatFace"
sketch16.AttachmentOffset = App.Placement(App.Vector(0, 0, -465), App.Rotation())
sketch16.addGeometry([
    Part.Circle(App.Vector(120, 23, 0), App.Vector(0, 0, 1), 2.75),
    Part.Circle(App.Vector(80, 23, 0), App.Vector(0, 0, 1), 2.2),
    Part.Circle(App.Vector(40, 23, 0), App.Vector(0, 0, 1), 2.2),
], False)
sketch16.addConstraint([
    Sketcher.Constraint("Equal", 1, 2),
    Sketcher.Constraint("Horizontal", 0, 3, 1, 3),
    Sketcher.Constraint("Horizontal", 1, 3, 2, 3),
    Sketcher.Constraint("Diameter", 0, 5.5),
    Sketcher.Constraint("Diameter", 1, 4.4),
    Sketcher.Constraint("DistanceX", -1, 1, 0, 3, 120.0),
    Sketcher.Constraint("DistanceY", -1, 1, 0, 3, 23.0),
    Sketcher.Constraint("DistanceX", -1, 1, 1, 3, 80.0),
    Sketcher.Constraint("DistanceX", -1, 1, 2, 3, 40.0),
])
pocket11 = body.newObject("PartDesign::Pocket", "Pocket010")
pocket11.Profile = sketch16
pocket11.Length = 11
pocket11.Reversed = True

sketch17 = body.newObject("Sketcher::SketchObject", "Sketch016")
sketch17.AttachmentSupport = (doc.getObject("XZ_Plane"), [""])
sketch17.MapMode = "FlatFace"
sketch17.AttachmentOffset = App.Placement(App.Vector(0, 0, -8), App.Rotation())
add_polygon(sketch17, [(0, -650), (0, -630), (20, -630), (20, -650)])
sketch17.addConstraint([
    Sketcher.Constraint("Vertical", 0),
    Sketcher.Constraint("Horizontal", 1),
    Sketcher.Constraint("Vertical", 2),
    Sketcher.Constraint("Horizontal", 3),
    Sketcher.Constraint("PointOnObject", 0, 2, -2),
    Sketcher.Constraint("Equal", 3, 0),
    Sketcher.Constraint("DistanceX", 1, 1, 1, 2, 20.0),
    Sketcher.Constraint("DistanceY", 0, 2, -1, 1, 630.0),
])
pocket12 = body.newObject("PartDesign::Pocket", "Pocket011")
pocket12.Profile = sketch17
pocket12.Length = 10
pocket12.Reversed = True

sketch18 = body.newObject("Sketcher::SketchObject", "Sketch017")
sketch18.AttachmentSupport = (doc.getObject("XZ_Plane"), [""])
sketch18.MapMode = "FlatFace"
sketch18.AttachmentOffset = App.Placement(App.Vector(0, 0, -8), App.Rotation())
add_polygon(sketch18, [(0, -650), (0, -455), (95, -455), (95, -650)])
sketch18.addConstraint([
    Sketcher.Constraint("Vertical", 0),
    Sketcher.Constraint("Horizontal", 1),
    Sketcher.Constraint("Vertical", 2),
    Sketcher.Constraint("Horizontal", 3),
    Sketcher.Constraint("PointOnObject", 0, 2, -2),
    Sketcher.Constraint("DistanceX", 1, 1, 1, 2, 95.0),
    Sketcher.Constraint("DistanceY", 0, 1, 0, 2, 195.0),
    Sketcher.Constraint("DistanceY", 0, 2, -1, 1, 455.0),
])
pocket13 = body.newObject("PartDesign::Pocket", "Pocket012")
pocket13.Profile = sketch18
pocket13.Type = "ThroughAll"
pocket13.Midplane = True

sketch19 = body.newObject("Sketcher::SketchObject", "Sketch018")
sketch19.AttachmentSupport = (doc.getObject("XZ_Plane"), [""])
sketch19.MapMode = "FlatFace"
sketch19.AttachmentOffset = App.Placement(App.Vector(0, 0, -8), App.Rotation())
add_polygon(sketch19, [(95, -650), (95, -575), (195, -575), (195, -650)])
sketch19.addConstraint([
    Sketcher.Constraint("Vertical", 0),
    Sketcher.Constraint("Horizontal", 1),
    Sketcher.Constraint("Vertical", 2),
    Sketcher.Constraint("Horizontal", 3),
    Sketcher.Constraint("DistanceX", 1, 1, 1, 2, 100.0),
    Sketcher.Constraint("DistanceY", 0, 1, 0, 2, 75.0),
    Sketcher.Constraint("DistanceX", -1, 1, 0, 2, 95.0),
    Sketcher.Constraint("DistanceY", 0, 2, -1, 1, 575.0),
])
pocket14 = body.newObject("PartDesign::Pocket", "Pocket013")
pocket14.Profile = sketch19
pocket14.Type = "ThroughAll"
pocket14.Midplane = True

sketch20 = body.newObject("Sketcher::SketchObject", "Sketch019")
sketch20.AttachmentSupport = (doc.getObject("XZ_Plane"), [""])
sketch20.MapMode = "FlatFace"
sketch20.AttachmentOffset = App.Placement(App.Vector(0, 0, -8), App.Rotation())
add_polygon(sketch20, [(95, -575), (95, -554.9), (115.1, -554.9), (115.1, -575)])
sketch20.addConstraint([
    Sketcher.Constraint("Vertical", 0),
    Sketcher.Constraint("Horizontal", 1),
    Sketcher.Constraint("Vertical", 2),
    Sketcher.Constraint("Horizontal", 3),
    Sketcher.Constraint("Equal", 3, 0),
    Sketcher.Constraint("DistanceX", 1, 1, 1, 2, 20.1),
    Sketcher.Constraint("DistanceX", -1, 1, 0, 2, 95.0),
    Sketcher.Constraint("DistanceY", 2, 2, -1, 1, 575.0),
])
pocket15 = body.newObject("PartDesign::Pocket", "Pocket014")
pocket15.Profile = sketch20
pocket15.Length = 10
pocket15.Reversed = True

sketch21 = body.newObject("Sketcher::SketchObject", "Sketch020")
sketch21.AttachmentSupport = (doc.getObject("XZ_Plane"), [""])
sketch21.MapMode = "FlatFace"
sketch21.AttachmentOffset = App.Placement(App.Vector(0, 0, -8), App.Rotation())
sketch21.addGeometry([
    Part.Circle(App.Vector(105, -524.9, 0), App.Vector(0, 0, 1), 2.15),
    Part.Circle(App.Vector(145.1, -565, 0), App.Vector(0, 0, 1), 2.15),
], False)
sketch21.addConstraint([
    Sketcher.Constraint("Equal", 0, 1),
    Sketcher.Constraint("Diameter", 0, 4.3),
    Sketcher.Constraint("DistanceX", -1, 1, 0, 3, 105.0),
    Sketcher.Constraint("DistanceY", 1, 3, -1, 1, 565.0),
    Sketcher.Constraint("DistanceY", 0, 3, -1, 1, 524.9),
    Sketcher.Constraint("DistanceX", -1, 1, 1, 3, 145.1),
])
pocket16 = body.newObject("PartDesign::Pocket", "Pocket015")
pocket16.Profile = sketch21
pocket16.Length = 10
pocket16.Reversed = True
doc.recompute()

chamfer = body.newObject("PartDesign::Chamfer", "Chamfer")
chamfer.Base = (pocket16, edges_at(pocket16, [(105, 8, -527.05), (145.1, 8, -567.15)]))
chamfer.Size = 1

doc.recompute()
